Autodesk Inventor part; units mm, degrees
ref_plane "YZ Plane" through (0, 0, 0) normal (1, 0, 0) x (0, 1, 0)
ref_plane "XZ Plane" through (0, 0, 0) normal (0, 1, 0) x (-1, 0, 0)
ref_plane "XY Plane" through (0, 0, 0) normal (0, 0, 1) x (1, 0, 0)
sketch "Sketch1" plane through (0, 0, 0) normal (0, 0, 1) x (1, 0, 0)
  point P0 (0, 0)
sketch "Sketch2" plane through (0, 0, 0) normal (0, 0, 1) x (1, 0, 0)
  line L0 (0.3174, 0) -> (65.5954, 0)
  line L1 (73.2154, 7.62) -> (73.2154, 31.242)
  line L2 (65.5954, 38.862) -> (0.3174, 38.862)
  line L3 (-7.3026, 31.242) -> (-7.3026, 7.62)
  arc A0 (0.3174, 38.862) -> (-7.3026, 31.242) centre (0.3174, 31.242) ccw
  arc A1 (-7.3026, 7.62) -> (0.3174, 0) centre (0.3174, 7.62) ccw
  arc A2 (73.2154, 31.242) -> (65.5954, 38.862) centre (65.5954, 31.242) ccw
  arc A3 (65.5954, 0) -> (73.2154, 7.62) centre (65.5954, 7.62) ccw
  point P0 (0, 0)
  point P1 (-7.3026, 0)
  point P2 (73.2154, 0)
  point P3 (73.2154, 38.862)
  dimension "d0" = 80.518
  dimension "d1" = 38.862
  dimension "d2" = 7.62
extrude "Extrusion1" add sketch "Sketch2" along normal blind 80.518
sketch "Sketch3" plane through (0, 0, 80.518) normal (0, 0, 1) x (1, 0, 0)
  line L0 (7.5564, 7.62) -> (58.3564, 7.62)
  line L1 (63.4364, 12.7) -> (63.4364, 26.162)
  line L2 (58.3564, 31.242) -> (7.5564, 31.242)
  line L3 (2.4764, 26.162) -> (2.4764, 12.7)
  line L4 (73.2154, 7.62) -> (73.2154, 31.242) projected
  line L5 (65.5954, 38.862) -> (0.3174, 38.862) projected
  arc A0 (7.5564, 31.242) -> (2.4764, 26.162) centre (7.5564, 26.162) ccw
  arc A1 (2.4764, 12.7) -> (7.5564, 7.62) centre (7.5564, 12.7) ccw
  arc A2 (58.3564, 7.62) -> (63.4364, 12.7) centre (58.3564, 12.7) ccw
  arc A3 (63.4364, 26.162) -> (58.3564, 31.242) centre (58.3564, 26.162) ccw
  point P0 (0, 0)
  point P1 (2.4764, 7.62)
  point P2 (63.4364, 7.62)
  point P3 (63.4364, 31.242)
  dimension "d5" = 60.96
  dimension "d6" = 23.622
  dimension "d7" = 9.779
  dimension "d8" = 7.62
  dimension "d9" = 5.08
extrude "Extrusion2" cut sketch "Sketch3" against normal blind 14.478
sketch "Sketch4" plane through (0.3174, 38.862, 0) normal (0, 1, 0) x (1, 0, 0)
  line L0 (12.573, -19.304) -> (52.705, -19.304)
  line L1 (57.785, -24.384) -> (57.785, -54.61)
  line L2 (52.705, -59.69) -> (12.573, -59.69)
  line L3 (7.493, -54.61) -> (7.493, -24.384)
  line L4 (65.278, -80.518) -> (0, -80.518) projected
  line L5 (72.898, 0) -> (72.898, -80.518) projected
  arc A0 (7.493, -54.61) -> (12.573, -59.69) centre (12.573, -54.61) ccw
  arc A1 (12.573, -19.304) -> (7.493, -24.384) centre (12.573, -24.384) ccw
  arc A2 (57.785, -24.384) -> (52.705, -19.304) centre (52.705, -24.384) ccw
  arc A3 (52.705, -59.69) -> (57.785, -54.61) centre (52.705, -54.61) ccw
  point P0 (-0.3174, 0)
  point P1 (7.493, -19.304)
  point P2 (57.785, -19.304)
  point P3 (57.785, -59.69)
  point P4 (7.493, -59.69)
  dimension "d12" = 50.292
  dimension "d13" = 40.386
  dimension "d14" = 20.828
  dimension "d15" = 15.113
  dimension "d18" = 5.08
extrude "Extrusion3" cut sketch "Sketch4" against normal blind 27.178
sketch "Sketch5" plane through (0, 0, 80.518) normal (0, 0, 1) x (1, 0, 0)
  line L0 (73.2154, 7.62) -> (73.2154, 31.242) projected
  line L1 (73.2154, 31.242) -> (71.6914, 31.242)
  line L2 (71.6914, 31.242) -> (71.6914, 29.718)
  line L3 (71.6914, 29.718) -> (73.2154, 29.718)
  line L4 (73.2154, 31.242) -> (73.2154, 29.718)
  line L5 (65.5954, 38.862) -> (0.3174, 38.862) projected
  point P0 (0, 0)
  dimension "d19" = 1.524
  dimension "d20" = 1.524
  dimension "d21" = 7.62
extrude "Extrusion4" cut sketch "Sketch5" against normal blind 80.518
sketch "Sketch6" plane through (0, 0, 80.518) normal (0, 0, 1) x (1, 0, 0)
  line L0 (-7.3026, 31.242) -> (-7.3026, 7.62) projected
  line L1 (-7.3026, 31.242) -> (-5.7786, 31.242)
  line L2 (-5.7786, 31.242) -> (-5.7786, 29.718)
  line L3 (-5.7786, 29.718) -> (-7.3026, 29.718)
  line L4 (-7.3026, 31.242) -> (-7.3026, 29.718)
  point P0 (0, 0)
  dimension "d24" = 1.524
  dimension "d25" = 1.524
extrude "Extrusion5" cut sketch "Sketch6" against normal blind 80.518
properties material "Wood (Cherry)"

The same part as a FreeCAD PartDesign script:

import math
import FreeCAD as App
import Part
import Sketcher
Q = App.Units.Quantity


def add_polygon(sketch, points):
    """Adds a closed chain of lines whose ends are joined by coincident constraints."""
    first, n = sketch.GeometryCount, len(points)
    for a, b in zip(points, points[1:] + points[:1]):
        sketch.addGeometry(Part.LineSegment(App.Vector(*a, 0), App.Vector(*b, 0)), False)
    for i in range(n):
        sketch.addConstraint(Sketcher.Constraint("Coincident", first + i, 2, first + (i + 1) % n, 1))

doc = App.newDocument("Part")
body = doc.addObject("PartDesign::Body", "Body")

# Sketch on XY plane
sketch1 = body.newObject("Sketcher::SketchObject", "Sketch")
sketch1.AttachmentSupport = (doc.getObject("XY_Plane"), [""])
sketch1.MapMode = "FlatFace"
sketch1.addGeometry([
    Part.ArcOfCircle(Part.Circle(App.Vector(0, 8, 0), App.Vector(0, 0, 1), 8), math.radians(180), math.radians(270)),  # 0
    Part.LineSegment(App.Vector(0, 0, 0), App.Vector(66, 0, 0)),  # 1
    Part.ArcOfCircle(Part.Circle(App.Vector(66, 8, 0), App.Vector(0, 0, 1), 8), math.radians(-90), math.radians(0)),  # 2
    Part.LineSegment(App.Vector(73, 8, 0), App.Vector(73, 31, 0)),  # 3
    Part.ArcOfCircle(Part.Circle(App.Vector(66, 31, 0), App.Vector(0, 0, 1), 8), math.radians(0), math.radians(90)),  # 4
    Part.LineSegment(App.Vector(66, 39, 0), App.Vector(0, 39, 0)),  # 5
    Part.ArcOfCircle(Part.Circle(App.Vector(0, 31, 0), App.Vector(0, 0, 1), 8), math.radians(90), math.radians(180)),  # 6
    Part.LineSegment(App.Vector(-7, 31, 0), App.Vector(-7, 8, 0)),  # 7
], False)
sketch1.addConstraint([
    Sketcher.Constraint("Tangent", 0, 2, 1, 1),
    Sketcher.Constraint("Tangent", 1, 2, 2, 1),
    Sketcher.Constraint("Tangent", 2, 2, 3, 1),
    Sketcher.Constraint("Tangent", 3, 2, 4, 1),
    Sketcher.Constraint("Tangent", 4, 2, 5, 1),
    Sketcher.Constraint("Tangent", 5, 2, 6, 1),
    Sketcher.Constraint("Tangent", 6, 2, 7, 1),
    Sketcher.Constraint("Tangent", 7, 2, 0, 1),
    Sketcher.Constraint("Horizontal", 1),
    Sketcher.Constraint("Vertical", 3),
    Sketcher.Constraint("Horizontal", 5),
    Sketcher.Constraint("Vertical", 7),
    Sketcher.Constraint("Equal", 0, 2),
    Sketcher.Constraint("Equal", 2, 4),
    Sketcher.Constraint("Equal", 4, 6),
    Sketcher.Constraint("PointOnObject", 0, 2, -1),
    Sketcher.Constraint("Radius", 0, Q("0.3 in")),
    Sketcher.Constraint("DistanceY", -1, 1, 4, 2, Q("1.53 in")),
    Sketcher.Constraint("DistanceX", 1, 1, 1, 2, Q("2.57 in")),
    Sketcher.Constraint("DistanceX", -1, 1, 0, 3, Q("0.0125 in")),
])
pad1 = body.newObject("PartDesign::Pad", "Pad")
pad1.Profile = sketch1
pad1.Length = Q("3.17 in")

# Sketch on XY plane
sketch2 = body.newObject("Sketcher::SketchObject", "Sketch001")
sketch2.AttachmentSupport = (doc.getObject("XY_Plane"), [""])
sketch2.MapMode = "FlatFace"
sketch2.AttachmentOffset = App.Placement(App.Vector(0, 0, 3.17 * 25.4), App.Rotation())
sketch2.addGeometry([
    Part.ArcOfCircle(Part.Circle(App.Vector(8, 13, 0), App.Vector(0, 0, 1), 5), math.radians(180), math.radians(270)),  # 0
    Part.LineSegment(App.Vector(8, 8, 0), App.Vector(58, 8, 0)),  # 1
    Part.ArcOfCircle(Part.Circle(App.Vector(58, 13, 0), App.Vector(0, 0, 1), 5), math.radians(-90), math.radians(0)),  # 2
    Part.LineSegment(App.Vector(63, 13, 0), App.Vector(63, 26, 0)),  # 3
    Part.ArcOfCircle(Part.Circle(App.Vector(58, 26, 0), App.Vector(0, 0, 1), 5), math.radians(0), math.radians(90)),  # 4
    Part.LineSegment(App.Vector(58, 31, 0), App.Vector(8, 31, 0)),  # 5
    Part.ArcOfCircle(Part.Circle(App.Vector(8, 26, 0), App.Vector(0, 0, 1), 5), math.radians(90), math.radians(180)),  # 6
    Part.LineSegment(App.Vector(2, 26, 0), App.Vector(2, 13, 0)),  # 7
], False)
sketch2.addConstraint([
    Sketcher.Constraint("Tangent", 0, 2, 1, 1),
    Sketcher.Constraint("Tangent", 1, 2, 2, 1),
    Sketcher.Constraint("Tangent", 2, 2, 3, 1),
    Sketcher.Constraint("Tangent", 3, 2, 4, 1),
    Sketcher.Constraint("Tangent", 4, 2, 5, 1),
    Sketcher.Constraint("Tangent", 5, 2, 6, 1),
    Sketcher.Constraint("Tangent", 6, 2, 7, 1),
    Sketcher.Constraint("Tangent", 7, 2, 0, 1),
    Sketcher.Constraint("Horizontal", 1),
    Sketcher.Constraint("Vertical", 3),
    Sketcher.Constraint("Horizontal", 5),
    Sketcher.Constraint("Vertical", 7),
    Sketcher.Constraint("Equal", 0, 2),
    Sketcher.Constraint("Equal", 2, 4),
    Sketcher.Constraint("Equal", 4, 6),
    Sketcher.Constraint("Radius", 0, Q("0.2 in")),
    Sketcher.Constraint("DistanceY", -1, 1, 0, 2, Q("0.3 in")),
    Sketcher.Constraint("DistanceX", 1, 1, 1, 2, Q("2 in")),
    Sketcher.Constraint("DistanceY", 1, 2, 4, 2, Q("0.93 in")),
    Sketcher.Constraint("DistanceX", -1, 1, 0, 3, Q("0.2975 in")),
])
pocket1 = body.newObject("PartDesign::Pocket", "Pocket")
pocket1.Profile = sketch2
pocket1.Length = Q("0.57 in")

# Sketch on XZ plane
sketch3 = body.newObject("Sketcher::SketchObject", "Sketch002")
sketch3.AttachmentSupport = (doc.getObject("XZ_Plane"), [""])
sketch3.MapMode = "FlatFace"
sketch3.AttachmentOffset = App.Placement(App.Vector(0, 0, -1.53 * 25.4), App.Rotation())
sketch3.addGeometry([
    Part.LineSegment(App.Vector(53, 19, 0), App.Vector(13, 19, 0)),  # 0
    Part.ArcOfCircle(Part.Circle(App.Vector(13, 24, 0), App.Vector(0, 0, 1), 5), math.radians(180), math.radians(270)),  # 1
    Part.LineSegment(App.Vector(8, 24, 0), App.Vector(8, 55, 0)),  # 2
    Part.ArcOfCircle(Part.Circle(App.Vector(13, 55, 0), App.Vector(0, 0, 1), 5), math.radians(90), math.radians(180)),  # 3
    Part.LineSegment(App.Vector(13, 60, 0), App.Vector(53, 60, 0)),  # 4
    Part.ArcOfCircle(Part.Circle(App.Vector(53, 55, 0), App.Vector(0, 0, 1), 5), math.radians(0), math.radians(90)),  # 5
    Part.LineSegment(App.Vector(58, 55, 0), App.Vector(58, 24, 0)),  # 6
    Part.ArcOfCircle(Part.Circle(App.Vector(53, 24, 0), App.Vector(0, 0, 1), 5), math.radians(-90), math.radians(0)),  # 7
], False)
sketch3.addConstraint([
    Sketcher.Constraint("Tangent", 0, 2, 1, 2),
    Sketcher.Constraint("Tangent", 1, 1, 2, 1),
    Sketcher.Constraint("Tangent", 2, 2, 3, 2),
    Sketcher.Constraint("Tangent", 3, 1, 4, 1),
    Sketcher.Constraint("Tangent", 4, 2, 5, 2),
    Sketcher.Constraint("Tangent", 5, 1, 6, 1),
    Sketcher.Constraint("Tangent", 6, 2, 7, 2),
    Sketcher.Constraint("Tangent", 7, 1, 0, 1),
    Sketcher.Constraint("Horizontal", 0),
    Sketcher.Constraint("Vertical", 2),
    Sketcher.Constraint("Horizontal", 4),
    Sketcher.Constraint("Vertical", 6),
    Sketcher.Constraint("Equal", 1, 3),
    Sketcher.Constraint("Equal", 3, 5),
    Sketcher.Constraint("Equal", 5, 7),
    Sketcher.Constraint("Radius", 1, Q("0.2 in")),
    Sketcher.Constraint("DistanceY", 0, 2, 3, 1, Q("1.59 in")),
    Sketcher.Constraint("DistanceX", 0, 2, 0, 1, Q("1.58 in")),
    Sketcher.Constraint("DistanceY", -1, 1, 1, 3, Q("0.96 in")),
    Sketcher.Constraint("DistanceX", -1, 1, 1, 3, Q("0.5075 in")),
])
pocket2 = body.newObject("PartDesign::Pocket", "Pocket001")
pocket2.Profile = sketch3
pocket2.Length = Q("1.07 in")
pocket2.Reversed = True

# Sketch on XY plane
sketch4 = body.newObject("Sketcher::SketchObject", "Sketch003")
sketch4.AttachmentSupport = (doc.getObject("XY_Plane"), [""])
sketch4.MapMode = "FlatFace"
sketch4.AttachmentOffset = App.Placement(App.Vector(0, 0, 3.17 * 25.4), App.Rotation())
add_polygon(sketch4, [(71.7, 29.7), (73.2, 29.7), (73.2, 31.2), (71.7, 31.2)])  # lines 0-3
sketch4.addConstraint([
    Sketcher.Constraint("Horizontal", 0),
    Sketcher.Constraint("Vertical", 1),
    Sketcher.Constraint("Horizontal", 2),
    Sketcher.Constraint("Vertical", 3),
    Sketcher.Constraint("Equal", 2, 1),
    Sketcher.Constraint("DistanceX", 0, 1, 0, 2, Q("0.06 in")),
    Sketcher.Constraint("DistanceY", -1, 1, 0, 2, Q("1.17 in")),
    Sketcher.Constraint("DistanceX", -1, 1, 0, 2, Q("2.8825 in")),
])
pocket3 = body.newObject("PartDesign::Pocket", "Pocket002")
pocket3.Profile = sketch4
pocket3.Length = Q("3.17 in")

# Sketch on XY plane
sketch5 = body.newObject("Sketcher::SketchObject", "Sketch004")
sketch5.AttachmentSupport = (doc.getObject("XY_Plane"), [""])
sketch5.MapMode = "FlatFace"
sketch5.AttachmentOffset = App.Placement(App.Vector(0, 0, 3.17 * 25.4), App.Rotation())
add_polygon(sketch5, [(-5.8, 31.2), (-7.3, 31.2), (-7.3, 29.7), (-5.8, 29.7)])  # lines 0-3
sketch5.addConstraint([
    Sketcher.Constraint("Horizontal", 0),
    Sketcher.Constraint("Vertical", 1),
    Sketcher.Constraint("Horizontal", 2),
    Sketcher.Constraint("Vertical", 3),
    Sketcher.Constraint("Equal", 2, 1),
    Sketcher.Constraint("DistanceX", 0, 2, 0, 1, Q("0.06 in")),
    Sketcher.Constraint("DistanceY", -1, 1, 0, 2, Q("1.23 in")),
    Sketcher.Constraint("DistanceX", 0, 2, -1, 1, Q("0.2875 in")),
])
pocket4 = body.newObject("PartDesign::Pocket", "Pocket003")
pocket4.Profile = sketch5
pocket4.Length = Q("3.17 in")

doc.recompute()
